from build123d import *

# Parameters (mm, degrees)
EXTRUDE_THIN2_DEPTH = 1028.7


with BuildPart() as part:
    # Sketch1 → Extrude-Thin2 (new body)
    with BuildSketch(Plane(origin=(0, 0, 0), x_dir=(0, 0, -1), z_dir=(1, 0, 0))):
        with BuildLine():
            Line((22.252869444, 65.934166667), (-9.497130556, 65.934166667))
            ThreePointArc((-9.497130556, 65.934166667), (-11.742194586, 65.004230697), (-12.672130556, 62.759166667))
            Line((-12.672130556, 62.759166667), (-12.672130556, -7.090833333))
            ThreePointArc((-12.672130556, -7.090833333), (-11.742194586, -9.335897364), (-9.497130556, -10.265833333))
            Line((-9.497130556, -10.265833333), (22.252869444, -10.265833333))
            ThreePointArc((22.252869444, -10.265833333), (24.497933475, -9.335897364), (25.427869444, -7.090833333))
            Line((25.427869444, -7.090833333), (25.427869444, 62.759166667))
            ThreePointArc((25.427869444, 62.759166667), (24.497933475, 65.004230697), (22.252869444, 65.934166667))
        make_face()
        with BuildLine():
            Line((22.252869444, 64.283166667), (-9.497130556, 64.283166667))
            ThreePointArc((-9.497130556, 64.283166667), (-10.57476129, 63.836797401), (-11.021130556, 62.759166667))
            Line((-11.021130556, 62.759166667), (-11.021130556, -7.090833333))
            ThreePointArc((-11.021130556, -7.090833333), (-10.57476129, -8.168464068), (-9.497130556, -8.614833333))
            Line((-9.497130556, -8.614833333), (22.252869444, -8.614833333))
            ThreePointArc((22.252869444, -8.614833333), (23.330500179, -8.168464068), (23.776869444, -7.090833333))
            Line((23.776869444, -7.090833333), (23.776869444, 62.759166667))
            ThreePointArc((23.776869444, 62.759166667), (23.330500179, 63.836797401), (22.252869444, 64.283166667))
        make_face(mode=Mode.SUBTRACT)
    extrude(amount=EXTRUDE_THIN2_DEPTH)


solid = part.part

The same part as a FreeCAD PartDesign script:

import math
import FreeCAD as App
import Part
import Sketcher

V = App.Vector
Q = App.Units.Quantity

doc = App.newDocument("Part")
body = doc.addObject("PartDesign::Body", "Body")

# Sketch on YZ plane
sketch1 = body.newObject("Sketcher::SketchObject", "Sketch")
sketch1.AttachmentSupport = (doc.getObject("YZ_Plane"), [""])
sketch1.MapMode = "FlatFace"
sketch1.addGeometry(Part.LineSegment(V(65.9, -22.3, 0), V(65.9, 9.5, 0)), False)
sketch1.addGeometry(Part.ArcOfCircle(Part.Circle(V(62.8, 9.5, 0), V(0, 0, 1), 3.2), math.radians(0), math.radians(90)), False)
sketch1.addGeometry(Part.LineSegment(V(62.8, 12.7, 0), V(-7.1, 12.7, 0)), False)
sketch1.addGeometry(Part.ArcOfCircle(Part.Circle(V(-7.1, 9.5, 0), V(0, 0, 1), 3.2), math.radians(90), math.radians(180)), False)
sketch1.addGeometry(Part.LineSegment(V(-10.3, 9.5, 0), V(-10.3, -22.3, 0)), False)
sketch1.addGeometry(Part.ArcOfCircle(Part.Circle(V(-7.1, -22.3, 0), V(0, 0, 1), 3.2), math.radians(180), math.radians(270)), False)
sketch1.addGeometry(Part.LineSegment(V(-7.1, -25.4, 0), V(62.8, -25.4, 0)), False)
sketch1.addGeometry(Part.ArcOfCircle(Part.Circle(V(62.8, -22.3, 0), V(0, 0, 1), 3.2), math.radians(-90), math.radians(0)), False)
sketch1.addGeometry(Part.LineSegment(V(64.3, 9.5, 0), V(64.3, -22.3, 0)), False)
sketch1.addGeometry(Part.ArcOfCircle(Part.Circle(V(62.8, -22.3, 0), V(0, 0, 1), 1.5), math.radians(-90), math.radians(0)), False)
sketch1.addGeometry(Part.LineSegment(V(62.8, -23.8, 0), V(-7.1, -23.8, 0)), False)
sketch1.addGeometry(Part.ArcOfCircle(Part.Circle(V(-7.1, -22.3, 0), V(0, 0, 1), 1.5), math.radians(180), math.radians(270)), False)
sketch1.addGeometry(Part.LineSegment(V(-8.6, -22.3, 0), V(-8.6, 9.5, 0)), False)
sketch1.addGeometry(Part.ArcOfCircle(Part.Circle(V(-7.1, 9.5, 0), V(0, 0, 1), 1.5), math.radians(90), math.radians(180)), False)
sketch1.addGeometry(Part.LineSegment(V(-7.1, 11, 0), V(62.8, 11, 0)), False)
sketch1.addGeometry(Part.ArcOfCircle(Part.Circle(V(62.8, 9.5, 0), V(0, 0, 1), 1.5), math.radians(0), math.radians(90)), False)
sketch1.addConstraint(Sketcher.Constraint("Tangent", 0, 2, 1, 1))
sketch1.addConstraint(Sketcher.Constraint("Tangent", 1, 2, 2, 1))
sketch1.addConstraint(Sketcher.Constraint("Tangent", 2, 2, 3, 1))
sketch1.addConstraint(Sketcher.Constraint("Tangent", 3, 2, 4, 1))
sketch1.addConstraint(Sketcher.Constraint("Tangent", 4, 2, 5, 1))
sketch1.addConstraint(Sketcher.Constraint("Tangent", 5, 2, 6, 1))
sketch1.addConstraint(Sketcher.Constraint("Tangent", 6, 2, 7, 1))
sketch1.addConstraint(Sketcher.Constraint("Tangent", 7, 2, 0, 1))
sketch1.addConstraint(Sketcher.Constraint("Tangent", 8, 2, 9, 2))
sketch1.addConstraint(Sketcher.Constraint("Tangent", 9, 1, 10, 1))
sketch1.addConstraint(Sketcher.Constraint("Tangent", 10, 2, 11, 2))
sketch1.addConstraint(Sketcher.Constraint("Tangent", 11, 1, 12, 1))
sketch1.addConstraint(Sketcher.Constraint("Tangent", 12, 2, 13, 2))
sketch1.addConstraint(Sketcher.Constraint("Tangent", 13, 1, 14, 1))
sketch1.addConstraint(Sketcher.Constraint("Tangent", 14, 2, 15, 2))
sketch1.addConstraint(Sketcher.Constraint("Tangent", 15, 1, 8, 1))
sketch1.addConstraint(Sketcher.Constraint("Vertical", 0))
sketch1.addConstraint(Sketcher.Constraint("Horizontal", 2))
sketch1.addConstraint(Sketcher.Constraint("Vertical", 4))
sketch1.addConstraint(Sketcher.Constraint("Horizontal", 6))
sketch1.addConstraint(Sketcher.Constraint("Vertical", 8))
sketch1.addConstraint(Sketcher.Constraint("Horizontal", 10))
sketch1.addConstraint(Sketcher.Constraint("Vertical", 12))
sketch1.addConstraint(Sketcher.Constraint("Horizontal", 14))
sketch1.addConstraint(Sketcher.Constraint("Coincident", 9, 3, 7, 3))
sketch1.addConstraint(Sketcher.Constraint("Coincident", 11, 3, 5, 3))
sketch1.addConstraint(Sketcher.Constraint("Coincident", 13, 3, 3, 3))
sketch1.addConstraint(Sketcher.Constraint("Equal", 1, 3))
sketch1.addConstraint(Sketcher.Constraint("Equal", 3, 5))
sketch1.addConstraint(Sketcher.Constraint("Equal", 5, 7))
sketch1.addConstraint(Sketcher.Constraint("Equal", 13, 15))
sketch1.addConstraint(Sketcher.Constraint("Radius", 9, Q("0.06 in")))
sketch1.addConstraint(Sketcher.Constraint("Radius", 1, Q("0.125 in")))
sketch1.addConstraint(Sketcher.Constraint("DistanceX", 2, 2, 2, 1, Q("2.75 in")))
sketch1.addConstraint(Sketcher.Constraint("DistanceY", 0, 1, 0, 2, Q("1.25 in")))
sketch1.addConstraint(Sketcher.Constraint("DistanceY", -1, 1, 1, 3, 9.497131))
sketch1.addConstraint(Sketcher.Constraint("DistanceX", -1, 1, 1, 3, 62.759167))
pad1 = body.newObject("PartDesign::Pad", "Pad")
pad1.Profile = sketch1
pad1.Length = Q("40.5 in")

doc.recompute()
